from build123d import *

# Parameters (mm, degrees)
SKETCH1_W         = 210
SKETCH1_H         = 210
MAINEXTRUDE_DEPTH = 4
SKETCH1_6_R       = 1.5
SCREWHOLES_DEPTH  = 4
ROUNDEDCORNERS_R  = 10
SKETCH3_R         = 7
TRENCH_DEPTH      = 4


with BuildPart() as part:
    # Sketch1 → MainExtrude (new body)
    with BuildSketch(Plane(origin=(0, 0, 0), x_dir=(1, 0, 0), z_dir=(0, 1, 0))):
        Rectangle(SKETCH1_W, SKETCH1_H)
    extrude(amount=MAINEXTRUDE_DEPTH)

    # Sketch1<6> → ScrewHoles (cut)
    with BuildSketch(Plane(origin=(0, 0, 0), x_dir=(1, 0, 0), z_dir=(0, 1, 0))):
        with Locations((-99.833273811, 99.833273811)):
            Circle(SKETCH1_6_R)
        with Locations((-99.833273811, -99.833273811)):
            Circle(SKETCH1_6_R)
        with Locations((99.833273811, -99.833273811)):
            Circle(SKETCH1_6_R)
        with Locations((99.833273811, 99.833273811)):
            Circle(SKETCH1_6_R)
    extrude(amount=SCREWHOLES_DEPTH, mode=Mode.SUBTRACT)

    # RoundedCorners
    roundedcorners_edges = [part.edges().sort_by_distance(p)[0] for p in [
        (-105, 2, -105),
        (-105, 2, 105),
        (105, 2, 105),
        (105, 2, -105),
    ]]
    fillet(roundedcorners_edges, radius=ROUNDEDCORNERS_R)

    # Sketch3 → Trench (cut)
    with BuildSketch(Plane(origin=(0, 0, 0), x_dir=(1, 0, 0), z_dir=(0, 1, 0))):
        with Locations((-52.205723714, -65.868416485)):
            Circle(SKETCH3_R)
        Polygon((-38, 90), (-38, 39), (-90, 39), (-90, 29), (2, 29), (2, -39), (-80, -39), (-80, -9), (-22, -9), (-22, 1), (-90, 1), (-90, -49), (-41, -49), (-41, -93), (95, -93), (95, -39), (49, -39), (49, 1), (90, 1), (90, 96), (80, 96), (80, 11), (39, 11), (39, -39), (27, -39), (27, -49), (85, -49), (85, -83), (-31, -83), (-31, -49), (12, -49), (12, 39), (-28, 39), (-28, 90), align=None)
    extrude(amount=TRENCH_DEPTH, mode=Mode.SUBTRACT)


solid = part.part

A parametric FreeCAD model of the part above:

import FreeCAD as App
import Part
import Sketcher

V = App.Vector


def edges_at(feature, points):
    """Names of the edges that pass closest to the given points."""
    edges = feature.Shape.Edges
    near = lambda p: min(range(len(edges)), key=lambda i: edges[i].distToShape(Part.Vertex(*p))[0])
    return sorted({f"Edge{near(p) + 1}" for p in points})

doc = App.newDocument("Part")
body = doc.addObject("PartDesign::Body", "Body")

# Sketch on XZ plane
sketch1 = body.newObject("Sketcher::SketchObject", "Sketch")
sketch1.AttachmentSupport = (doc.getObject("XZ_Plane"), [""])
sketch1.MapMode = "FlatFace"
sketch1.addGeometry(Part.LineSegment(V(-105, -105, 0), V(-105, 105, 0)), False)
sketch1.addGeometry(Part.LineSegment(V(-105, 105, 0), V(105, 105, 0)), False)
sketch1.addGeometry(Part.LineSegment(V(105, 105, 0), V(105, -105, 0)), False)
sketch1.addGeometry(Part.LineSegment(V(105, -105, 0), V(-105, -105, 0)), False)
sketch1.addConstraint(Sketcher.Constraint("Coincident", 0, 2, 1, 1))
sketch1.addConstraint(Sketcher.Constraint("Coincident", 1, 2, 2, 1))
sketch1.addConstraint(Sketcher.Constraint("Coincident", 2, 2, 3, 1))
sketch1.addConstraint(Sketcher.Constraint("Coincident", 3, 2, 0, 1))
sketch1.addConstraint(Sketcher.Constraint("Vertical", 0))
sketch1.addConstraint(Sketcher.Constraint("Horizontal", 1))
sketch1.addConstraint(Sketcher.Constraint("Vertical", 2))
sketch1.addConstraint(Sketcher.Constraint("Horizontal", 3))
sketch1.addConstraint(Sketcher.Constraint("Symmetric", 0, 2, 2, 2, -1, 1))
sketch1.addConstraint(Sketcher.Constraint("Equal", 3, 0))
sketch1.addConstraint(Sketcher.Constraint("DistanceX", 1, 1, 1, 2, 210.0))
pad1 = body.newObject("PartDesign::Pad", "Pad")
pad1.Profile = sketch1
pad1.Length = 4
pad1.Reversed = True

# Sketch on XZ plane
sketch2 = body.newObject("Sketcher::SketchObject", "Sketch001")
sketch2.AttachmentSupport = (doc.getObject("XZ_Plane"), [""])
sketch2.MapMode = "FlatFace"
sketch2.addGeometry(Part.Circle(V(-99.833274, -99.833274, 0), V(0, 0, 1), 1.5), False)
sketch2.addGeometry(Part.Circle(V(-99.833274, 99.833274, 0), V(0, 0, 1), 1.5), False)
sketch2.addGeometry(Part.Circle(V(99.833274, 99.833274, 0), V(0, 0, 1), 1.5), False)
sketch2.addGeometry(Part.Circle(V(99.833274, -99.833274, 0), V(0, 0, 1), 1.5), False)
sketch2.addConstraint(Sketcher.Constraint("Equal", 0, 1))
sketch2.addConstraint(Sketcher.Constraint("Equal", 1, 2))
sketch2.addConstraint(Sketcher.Constraint("Equal", 2, 3))
sketch2.addConstraint(Sketcher.Constraint("Symmetric", 0, 3, 2, 3, -1, 1))
sketch2.addConstraint(Sketcher.Constraint("Symmetric", 1, 3, 3, 3, -1, 1))
sketch2.addConstraint(Sketcher.Constraint("Symmetric", 1, 3, 2, 3, -2))
sketch2.addConstraint(Sketcher.Constraint("Diameter", 0, 3.0))
sketch2.addConstraint(Sketcher.Constraint("DistanceX", 0, 3, -1, 1, 99.833274))
sketch2.addConstraint(Sketcher.Constraint("DistanceY", 0, 3, -1, 1, 99.833274))
pocket1 = body.newObject("PartDesign::Pocket", "Pocket")
pocket1.Profile = sketch2
pocket1.Length = 4
doc.recompute()

fillet = body.newObject("PartDesign::Fillet", "Fillet")
fillet.Base = (pocket1, edges_at(pocket1, [
    (-105, 2, -105),
    (-105, 2, 105),
    (105, 2, 105),
    (105, 2, -105),
]))
fillet.Radius = 10

# Sketch on XZ plane
sketch3 = body.newObject("Sketcher::SketchObject", "Sketch002")
sketch3.AttachmentSupport = (doc.getObject("XZ_Plane"), [""])
sketch3.MapMode = "FlatFace"
sketch3.addGeometry(Part.Circle(V(-52.205724, 65.868416, 0), V(0, 0, 1), 7), False)
sketch3.addGeometry(Part.LineSegment(V(-38, -90, 0), V(-38, -39, 0)), False)
sketch3.addGeometry(Part.LineSegment(V(-38, -39, 0), V(-90, -39, 0)), False)
sketch3.addGeometry(Part.LineSegment(V(-90, -39, 0), V(-90, -29, 0)), False)
sketch3.addGeometry(Part.LineSegment(V(-90, -29, 0), V(2, -29, 0)), False)
sketch3.addGeometry(Part.LineSegment(V(2, -29, 0), V(2, 39, 0)), False)
sketch3.addGeometry(Part.LineSegment(V(2, 39, 0), V(-80, 39, 0)), False)
sketch3.addGeometry(Part.LineSegment(V(-80, 39, 0), V(-80, 9, 0)), False)
sketch3.addGeometry(Part.LineSegment(V(-80, 9, 0), V(-22, 9, 0)), False)
sketch3.addGeometry(Part.LineSegment(V(-22, 9, 0), V(-22, -1, 0)), False)
sketch3.addGeometry(Part.LineSegment(V(-22, -1, 0), V(-90, -1, 0)), False)
sketch3.addGeometry(Part.LineSegment(V(-90, -1, 0), V(-90, 49, 0)), False)
sketch3.addGeometry(Part.LineSegment(V(-90, 49, 0), V(-41, 49, 0)), False)
sketch3.addGeometry(Part.LineSegment(V(-41, 49, 0), V(-41, 93, 0)), False)
sketch3.addGeometry(Part.LineSegment(V(-41, 93, 0), V(95, 93, 0)), False)
sketch3.addGeometry(Part.LineSegment(V(95, 93, 0), V(95, 39, 0)), False)
sketch3.addGeometry(Part.LineSegment(V(95, 39, 0), V(49, 39, 0)), False)
sketch3.addGeometry(Part.LineSegment(V(49, 39, 0), V(49, -1, 0)), False)
sketch3.addGeometry(Part.LineSegment(V(49, -1, 0), V(90, -1, 0)), False)
sketch3.addGeometry(Part.LineSegment(V(90, -1, 0), V(90, -96, 0)), False)
sketch3.addGeometry(Part.LineSegment(V(90, -96, 0), V(80, -96, 0)), False)
sketch3.addGeometry(Part.LineSegment(V(80, -96, 0), V(80, -11, 0)), False)
sketch3.addGeometry(Part.LineSegment(V(80, -11, 0), V(39, -11, 0)), False)
sketch3.addGeometry(Part.LineSegment(V(39, -11, 0), V(39, 39, 0)), False)
sketch3.addGeometry(Part.LineSegment(V(39, 39, 0), V(27, 39, 0)), False)
sketch3.addGeometry(Part.LineSegment(V(27, 39, 0), V(27, 49, 0)), False)
sketch3.addGeometry(Part.LineSegment(V(27, 49, 0), V(85, 49, 0)), False)
sketch3.addGeometry(Part.LineSegment(V(85, 49, 0), V(85, 83, 0)), False)
sketch3.addGeometry(Part.LineSegment(V(85, 83, 0), V(-31, 83, 0)), False)
sketch3.addGeometry(Part.LineSegment(V(-31, 83, 0), V(-31, 49, 0)), False)
sketch3.addGeometry(Part.LineSegment(V(-31, 49, 0), V(12, 49, 0)), False)
sketch3.addGeometry(Part.LineSegment(V(12, 49, 0), V(12, -39, 0)), False)
sketch3.addGeometry(Part.LineSegment(V(12, -39, 0), V(-28, -39, 0)), False)
sketch3.addGeometry(Part.LineSegment(V(-28, -39, 0), V(-28, -90, 0)), False)
sketch3.addGeometry(Part.LineSegment(V(-28, -90, 0), V(-38, -90, 0)), False)
sketch3.addConstraint(Sketcher.Constraint("Coincident", 1, 2, 2, 1))
sketch3.addConstraint(Sketcher.Constraint("Coincident", 2, 2, 3, 1))
sketch3.addConstraint(Sketcher.Constraint("Coincident", 3, 2, 4, 1))
sketch3.addConstraint(Sketcher.Constraint("Coincident", 4, 2, 5, 1))
sketch3.addConstraint(Sketcher.Constraint("Coincident", 5, 2, 6, 1))
sketch3.addConstraint(Sketcher.Constraint("Coincident", 6, 2, 7, 1))
sketch3.addConstraint(Sketcher.Constraint("Coincident", 7, 2, 8, 1))
sketch3.addConstraint(Sketcher.Constraint("Coincident", 8, 2, 9, 1))
sketch3.addConstraint(Sketcher.Constraint("Coincident", 9, 2, 10, 1))
sketch3.addConstraint(Sketcher.Constraint("Coincident", 10, 2, 11, 1))
sketch3.addConstraint(Sketcher.Constraint("Coincident", 11, 2, 12, 1))
sketch3.addConstraint(Sketcher.Constraint("Coincident", 12, 2, 13, 1))
sketch3.addConstraint(Sketcher.Constraint("Coincident", 13, 2, 14, 1))
sketch3.addConstraint(Sketcher.Constraint("Coincident", 14, 2, 15, 1))
sketch3.addConstraint(Sketcher.Constraint("Coincident", 15, 2, 16, 1))
sketch3.addConstraint(Sketcher.Constraint("Coincident", 16, 2, 17, 1))
sketch3.addConstraint(Sketcher.Constraint("Coincident", 17, 2, 18, 1))
sketch3.addConstraint(Sketcher.Constraint("Coincident", 18, 2, 19, 1))
sketch3.addConstraint(Sketcher.Constraint("Coincident", 19, 2, 20, 1))
sketch3.addConstraint(Sketcher.Constraint("Coincident", 20, 2, 21, 1))
sketch3.addConstraint(Sketcher.Constraint("Coincident", 21, 2, 22, 1))
sketch3.addConstraint(Sketcher.Constraint("Coincident", 22, 2, 23, 1))
sketch3.addConstraint(Sketcher.Constraint("Coincident", 23, 2, 24, 1))
sketch3.addConstraint(Sketcher.Constraint("Coincident", 24, 2, 25, 1))
sketch3.addConstraint(Sketcher.Constraint("Coincident", 25, 2, 26, 1))
sketch3.addConstraint(Sketcher.Constraint("Coincident", 26, 2, 27, 1))
sketch3.addConstraint(Sketcher.Constraint("Coincident", 27, 2, 28, 1))
sketch3.addConstraint(Sketcher.Constraint("Coincident", 28, 2, 29, 1))
sketch3.addConstraint(Sketcher.Constraint("Coincident", 29, 2, 30, 1))
sketch3.addConstraint(Sketcher.Constraint("Coincident", 30, 2, 31, 1))
sketch3.addConstraint(Sketcher.Constraint("Coincident", 31, 2, 32, 1))
sketch3.addConstraint(Sketcher.Constraint("Coincident", 32, 2, 33, 1))
sketch3.addConstraint(Sketcher.Constraint("Coincident", 33, 2, 34, 1))
sketch3.addConstraint(Sketcher.Constraint("Coincident", 34, 2, 1, 1))
sketch3.addConstraint(Sketcher.Constraint("Vertical", 1))
sketch3.addConstraint(Sketcher.Constraint("Horizontal", 2))
sketch3.addConstraint(Sketcher.Constraint("Vertical", 3))
sketch3.addConstraint(Sketcher.Constraint("Horizontal", 4))
sketch3.addConstraint(Sketcher.Constraint("Vertical", 5))
sketch3.addConstraint(Sketcher.Constraint("Horizontal", 6))
sketch3.addConstraint(Sketcher.Constraint("Vertical", 7))
sketch3.addConstraint(Sketcher.Constraint("Horizontal", 8))
sketch3.addConstraint(Sketcher.Constraint("Vertical", 9))
sketch3.addConstraint(Sketcher.Constraint("Horizontal", 10))
sketch3.addConstraint(Sketcher.Constraint("Vertical", 11))
sketch3.addConstraint(Sketcher.Constraint("Horizontal", 12))
sketch3.addConstraint(Sketcher.Constraint("Vertical", 13))
sketch3.addConstraint(Sketcher.Constraint("Horizontal", 14))
sketch3.addConstraint(Sketcher.Constraint("Vertical", 15))
sketch3.addConstraint(Sketcher.Constraint("Horizontal", 16))
sketch3.addConstraint(Sketcher.Constraint("Vertical", 17))
sketch3.addConstraint(Sketcher.Constraint("Horizontal", 18))
sketch3.addConstraint(Sketcher.Constraint("Vertical", 19))
sketch3.addConstraint(Sketcher.Constraint("Horizontal", 20))
sketch3.addConstraint(Sketcher.Constraint("Vertical", 21))
sketch3.addConstraint(Sketcher.Constraint("Horizontal", 22))
sketch3.addConstraint(Sketcher.Constraint("Vertical", 23))
sketch3.addConstraint(Sketcher.Constraint("Horizontal", 24))
sketch3.addConstraint(Sketcher.Constraint("Vertical", 25))
sketch3.addConstraint(Sketcher.Constraint("Horizontal", 26))
sketch3.addConstraint(Sketcher.Constraint("Vertical", 27))
sketch3.addConstraint(Sketcher.Constraint("Horizontal", 28))
sketch3.addConstraint(Sketcher.Constraint("Vertical", 29))
sketch3.addConstraint(Sketcher.Constraint("Horizontal", 30))
sketch3.addConstraint(Sketcher.Constraint("Vertical", 31))
sketch3.addConstraint(Sketcher.Constraint("Horizontal", 32))
sketch3.addConstraint(Sketcher.Constraint("Vertical", 33))
sketch3.addConstraint(Sketcher.Constraint("Horizontal", 34))
sketch3.addConstraint(Sketcher.Constraint("Symmetric", 10, 2, 18, 2, -2))
sketch3.addConstraint(Sketcher.Constraint("Horizontal", 6, 2, 15, 2))
sketch3.addConstraint(Sketcher.Constraint("Horizontal", 16, 2, 23, 2))
sketch3.addConstraint(Sketcher.Constraint("Horizontal", 12, 2, 25, 2))
sketch3.addConstraint(Sketcher.Constraint("Horizontal", 26, 2, 29, 2))
sketch3.addConstraint(Sketcher.Constraint("Horizontal", 2, 2, 31, 2))
sketch3.addConstraint(Sketcher.Constraint("Vertical", 3, 2, 10, 2))
sketch3.addConstraint(Sketcher.Constraint("Equal", 18, 22))
sketch3.addConstraint(Sketcher.Constraint("Equal", 8, 26))
sketch3.addConstraint(Sketcher.Constraint("Equal", 20, 34))
sketch3.addConstraint(Sketcher.Constraint("Equal", 34, 3))
sketch3.addConstraint(Sketcher.Constraint("Equal", 10, 5))
sketch3.addConstraint(Sketcher.Constraint("Equal", 3, 9))
sketch3.addConstraint(Sketcher.Constraint("Equal", 32, 17))
sketch3.addConstraint(Sketcher.Constraint("Equal", 11, 23))
sketch3.addConstraint(Sketcher.Constraint("Equal", 9, 25))
sketch3.addConstraint(Sketcher.Constraint("Diameter", 0, 14.0))
sketch3.addConstraint(Sketcher.Constraint("DistanceX", 2, 2, 2, 1, 52.0))
sketch3.addConstraint(Sketcher.Constraint("DistanceX", 4, 1, 4, 2, 92.0))
sketch3.addConstraint(Sketcher.Constraint("DistanceX", 6, 2, 6, 1, 82.0))
sketch3.addConstraint(Sketcher.Constraint("DistanceX", 8, 1, 8, 2, 58.0))
sketch3.addConstraint(Sketcher.Constraint("DistanceX", 12, 1, 12, 2, 49.0))
sketch3.addConstraint(Sketcher.Constraint("DistanceX", 14, 1, 14, 2, 136.0))
sketch3.addConstraint(Sketcher.Constraint("DistanceX", 16, 2, 16, 1, 46.0))
sketch3.addConstraint(Sketcher.Constraint("DistanceX", 18, 1, 18, 2, 41.0))
sketch3.addConstraint(Sketcher.Constraint("DistanceX", 20, 2, 20, 1, 10.0))
sketch3.addConstraint(Sketcher.Constraint("DistanceX", 24, 2, 24, 1, 12.0))
sketch3.addConstraint(Sketcher.Constraint("DistanceX", 28, 2, 28, 1, 116.0))
sketch3.addConstraint(Sketcher.Constraint("DistanceX", 30, 1, 30, 2, 43.0))
sketch3.addConstraint(Sketcher.Constraint("DistanceY", 1, 1, 1, 2, 51.0))
sketch3.addConstraint(Sketcher.Constraint("DistanceY", 13, 1, 13, 2, 44.0))
sketch3.addConstraint(Sketcher.Constraint("DistanceY", 19, 2, 19, 1, 95.0))
sketch3.addConstraint(Sketcher.Constraint("DistanceY", 27, 1, 27, 2, 34.0))
sketch3.addConstraint(Sketcher.Constraint("DistanceY", 1, 2, -1, 1, 39.0))
sketch3.addConstraint(Sketcher.Constraint("DistanceX", 0, 3, -1, 1, 52.205724))
sketch3.addConstraint(Sketcher.Constraint("DistanceY", -1, 1, 0, 3, 65.868416))
pocket2 = body.newObject("PartDesign::Pocket", "Pocket001")
pocket2.Profile = sketch3
pocket2.Length = 4

doc.recompute()
